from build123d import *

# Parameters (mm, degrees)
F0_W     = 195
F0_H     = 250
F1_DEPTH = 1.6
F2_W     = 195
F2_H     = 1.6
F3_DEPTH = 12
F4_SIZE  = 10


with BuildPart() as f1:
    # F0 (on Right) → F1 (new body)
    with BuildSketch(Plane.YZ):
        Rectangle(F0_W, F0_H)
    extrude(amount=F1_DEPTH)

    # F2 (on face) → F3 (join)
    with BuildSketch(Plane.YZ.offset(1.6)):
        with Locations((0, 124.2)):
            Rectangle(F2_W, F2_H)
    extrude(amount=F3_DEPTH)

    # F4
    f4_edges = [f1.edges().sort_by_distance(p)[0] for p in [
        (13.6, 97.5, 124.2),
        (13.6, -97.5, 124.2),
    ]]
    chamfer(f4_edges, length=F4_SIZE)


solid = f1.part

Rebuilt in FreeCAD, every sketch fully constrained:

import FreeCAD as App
import Part
import Sketcher

V = App.Vector


def edges_at(feature, points):
    """Names of the edges that pass closest to the given points."""
    edges = feature.Shape.Edges
    near = lambda p: min(range(len(edges)), key=lambda i: edges[i].distToShape(Part.Vertex(*p))[0])
    return sorted({f"Edge{near(p) + 1}" for p in points})


def add_polygon(sketch, points):
    """Adds a closed chain of lines whose ends are joined by coincident constraints."""
    first, n = sketch.GeometryCount, len(points)
    for a, b in zip(points, points[1:] + points[:1]):
        sketch.addGeometry(Part.LineSegment(App.Vector(*a, 0), App.Vector(*b, 0)), False)
    for i in range(n):
        sketch.addConstraint(Sketcher.Constraint("Coincident", first + i, 2, first + (i + 1) % n, 1))

doc = App.newDocument("Part")
body = doc.addObject("PartDesign::Body", "Body")

sketch1 = body.newObject("Sketcher::SketchObject", "Sketch")
sketch1.AttachmentSupport = (doc.getObject("YZ_Plane"), [""])
sketch1.MapMode = "FlatFace"
add_polygon(sketch1, [(-98, 125), (-98, -125), (98, -125), (98, 125)])
sketch1.addConstraint(Sketcher.Constraint("Vertical", 0))
sketch1.addConstraint(Sketcher.Constraint("Horizontal", 1))
sketch1.addConstraint(Sketcher.Constraint("Vertical", 2))
sketch1.addConstraint(Sketcher.Constraint("Horizontal", 3))
sketch1.addConstraint(Sketcher.Constraint("Symmetric", 0, 2, 2, 2, -1, 1))
sketch1.addConstraint(Sketcher.Constraint("DistanceX", 1, 1, 1, 2, 195.0))
sketch1.addConstraint(Sketcher.Constraint("DistanceY", 0, 2, 0, 1, 250.0))
pad1 = body.newObject("PartDesign::Pad", "Pad")
pad1.Profile = sketch1
pad1.Length = 1.6

sketch2 = body.newObject("Sketcher::SketchObject", "Sketch001")
sketch2.AttachmentSupport = (doc.getObject("YZ_Plane"), [""])
sketch2.MapMode = "FlatFace"
sketch2.AttachmentOffset = App.Placement(V(0, 0, 1.6), App.Rotation())
add_polygon(sketch2, [(-97.5, 125), (-97.5, 123.4), (97.5, 123.4), (97.5, 125)])
sketch2.addConstraint(Sketcher.Constraint("Vertical", 0))
sketch2.addConstraint(Sketcher.Constraint("Horizontal", 1))
sketch2.addConstraint(Sketcher.Constraint("Vertical", 2))
sketch2.addConstraint(Sketcher.Constraint("Horizontal", 3))
sketch2.addConstraint(Sketcher.Constraint("DistanceX", 1, 1, 1, 2, 195.0))
sketch2.addConstraint(Sketcher.Constraint("DistanceY", 0, 2, 0, 1, 1.6))
sketch2.addConstraint(Sketcher.Constraint("DistanceY", -1, 1, 2, 2, 125.0))
sketch2.addConstraint(Sketcher.Constraint("DistanceX", 0, 2, -1, 1, 97.5))
pad2 = body.newObject("PartDesign::Pad", "Pad001")
pad2.Profile = sketch2
pad2.Length = 12
doc.recompute()

chamfer = body.newObject("PartDesign::Chamfer", "Chamfer")
chamfer.Base = (pad2, edges_at(pad2, [(13.6, 97.5, 124.2), (13.6, -97.5, 124.2)]))
chamfer.Size = 10

doc.recompute()
